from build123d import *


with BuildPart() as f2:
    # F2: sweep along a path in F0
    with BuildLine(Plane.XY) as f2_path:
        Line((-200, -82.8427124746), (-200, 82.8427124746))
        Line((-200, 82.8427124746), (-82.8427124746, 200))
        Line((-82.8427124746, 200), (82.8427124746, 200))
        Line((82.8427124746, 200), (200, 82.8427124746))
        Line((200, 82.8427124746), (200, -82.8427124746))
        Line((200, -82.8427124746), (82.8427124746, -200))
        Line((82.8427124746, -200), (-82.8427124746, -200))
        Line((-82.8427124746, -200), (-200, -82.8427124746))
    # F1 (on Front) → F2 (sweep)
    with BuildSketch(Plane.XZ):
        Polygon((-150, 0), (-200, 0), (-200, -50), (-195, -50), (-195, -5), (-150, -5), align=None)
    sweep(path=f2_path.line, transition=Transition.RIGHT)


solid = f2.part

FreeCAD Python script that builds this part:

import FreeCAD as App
import Part
import Sketcher

V = App.Vector
Q = App.Units.Quantity


def add_polygon(sketch, points):
    """Adds a closed chain of lines whose ends are joined by coincident constraints."""
    first, n = sketch.GeometryCount, len(points)
    for a, b in zip(points, points[1:] + points[:1]):
        sketch.addGeometry(Part.LineSegment(App.Vector(*a, 0), App.Vector(*b, 0)), False)
    for i in range(n):
        sketch.addConstraint(Sketcher.Constraint("Coincident", first + i, 2, first + (i + 1) % n, 1))

doc = App.newDocument("Part")
body = doc.addObject("PartDesign::Body", "Body")

sketch1 = body.newObject("Sketcher::SketchObject", "Sketch")
sketch1.AttachmentSupport = (doc.getObject("XZ_Plane"), [""])
sketch1.MapMode = "FlatFace"
add_polygon(sketch1, [(-150, 0), (-200, 0), (-200, -50), (-195, -50), (-195, -5), (-150, -5)])
sketch1.addConstraint(Sketcher.Constraint("Horizontal", 0))
sketch1.addConstraint(Sketcher.Constraint("Vertical", 1))
sketch1.addConstraint(Sketcher.Constraint("Horizontal", 2))
sketch1.addConstraint(Sketcher.Constraint("Vertical", 3))
sketch1.addConstraint(Sketcher.Constraint("Horizontal", 4))
sketch1.addConstraint(Sketcher.Constraint("Vertical", 5))
sketch1.addConstraint(Sketcher.Constraint("PointOnObject", 0, 2, -1))
sketch1.addConstraint(Sketcher.Constraint("Equal", 0, 1))
sketch1.addConstraint(Sketcher.Constraint("Equal", 4, 3))
sketch1.addConstraint(Sketcher.Constraint("DistanceX", 0, 2, 0, 1, Q("50 mm")))
sketch1.addConstraint(Sketcher.Constraint("DistanceX", 2, 1, 2, 2, Q("5 mm")))
sketch1.addConstraint(Sketcher.Constraint("DistanceX", 0, 2, -1, 1, Q("200 mm")))

sketch2 = body.newObject("Sketcher::SketchObject", "Sketch001")
sketch2.AttachmentSupport = (doc.getObject("XY_Plane"), [""])
sketch2.MapMode = "FlatFace"
add_polygon(sketch2, [(-200, -83), (-200, 83), (-83, 200), (83, 200), (200, 83), (200, -83), (83, -200), (-83, -200)])
sketch2.addConstraint(Sketcher.Constraint("Vertical", 0))
sketch2.addConstraint(Sketcher.Constraint("Horizontal", 2))
sketch2.addConstraint(Sketcher.Constraint("Vertical", 4))
sketch2.addConstraint(Sketcher.Constraint("Horizontal", 6))
sketch2.addConstraint(Sketcher.Constraint("Symmetric", 0, 2, 4, 2, -1, 1))
sketch2.addConstraint(Sketcher.Constraint("Symmetric", 1, 2, 5, 2, -1, 1))
sketch2.addConstraint(Sketcher.Constraint("Perpendicular", 1, 3))
sketch2.addConstraint(Sketcher.Constraint("Perpendicular", 5, 7))
sketch2.addConstraint(Sketcher.Constraint("Horizontal", 0, 2, 3, 2))
sketch2.addConstraint(Sketcher.Constraint("Horizontal", 4, 2, 7, 2))
sketch2.addConstraint(Sketcher.Constraint("Vertical", 2, 2, 5, 2))
sketch2.addConstraint(Sketcher.Constraint("Equal", 6, 0))
sketch2.addConstraint(Sketcher.Constraint("DistanceX", 0, 2, -1, 1, Q("200 mm")))
sketch2.addConstraint(Sketcher.Constraint("DistanceX", 2, 1, 2, 2, Q("165.685425 mm")))
doc.recompute()

additivepipe = body.newObject("PartDesign::AdditivePipe", "AdditivePipe")
additivepipe.Profile = sketch1
additivepipe.Spine = (sketch2, ["Edge1", "Edge2", "Edge3", "Edge4", "Edge5", "Edge6", "Edge7", "Edge8"])
additivepipe.Transition = "Right corner"

doc.recompute()
